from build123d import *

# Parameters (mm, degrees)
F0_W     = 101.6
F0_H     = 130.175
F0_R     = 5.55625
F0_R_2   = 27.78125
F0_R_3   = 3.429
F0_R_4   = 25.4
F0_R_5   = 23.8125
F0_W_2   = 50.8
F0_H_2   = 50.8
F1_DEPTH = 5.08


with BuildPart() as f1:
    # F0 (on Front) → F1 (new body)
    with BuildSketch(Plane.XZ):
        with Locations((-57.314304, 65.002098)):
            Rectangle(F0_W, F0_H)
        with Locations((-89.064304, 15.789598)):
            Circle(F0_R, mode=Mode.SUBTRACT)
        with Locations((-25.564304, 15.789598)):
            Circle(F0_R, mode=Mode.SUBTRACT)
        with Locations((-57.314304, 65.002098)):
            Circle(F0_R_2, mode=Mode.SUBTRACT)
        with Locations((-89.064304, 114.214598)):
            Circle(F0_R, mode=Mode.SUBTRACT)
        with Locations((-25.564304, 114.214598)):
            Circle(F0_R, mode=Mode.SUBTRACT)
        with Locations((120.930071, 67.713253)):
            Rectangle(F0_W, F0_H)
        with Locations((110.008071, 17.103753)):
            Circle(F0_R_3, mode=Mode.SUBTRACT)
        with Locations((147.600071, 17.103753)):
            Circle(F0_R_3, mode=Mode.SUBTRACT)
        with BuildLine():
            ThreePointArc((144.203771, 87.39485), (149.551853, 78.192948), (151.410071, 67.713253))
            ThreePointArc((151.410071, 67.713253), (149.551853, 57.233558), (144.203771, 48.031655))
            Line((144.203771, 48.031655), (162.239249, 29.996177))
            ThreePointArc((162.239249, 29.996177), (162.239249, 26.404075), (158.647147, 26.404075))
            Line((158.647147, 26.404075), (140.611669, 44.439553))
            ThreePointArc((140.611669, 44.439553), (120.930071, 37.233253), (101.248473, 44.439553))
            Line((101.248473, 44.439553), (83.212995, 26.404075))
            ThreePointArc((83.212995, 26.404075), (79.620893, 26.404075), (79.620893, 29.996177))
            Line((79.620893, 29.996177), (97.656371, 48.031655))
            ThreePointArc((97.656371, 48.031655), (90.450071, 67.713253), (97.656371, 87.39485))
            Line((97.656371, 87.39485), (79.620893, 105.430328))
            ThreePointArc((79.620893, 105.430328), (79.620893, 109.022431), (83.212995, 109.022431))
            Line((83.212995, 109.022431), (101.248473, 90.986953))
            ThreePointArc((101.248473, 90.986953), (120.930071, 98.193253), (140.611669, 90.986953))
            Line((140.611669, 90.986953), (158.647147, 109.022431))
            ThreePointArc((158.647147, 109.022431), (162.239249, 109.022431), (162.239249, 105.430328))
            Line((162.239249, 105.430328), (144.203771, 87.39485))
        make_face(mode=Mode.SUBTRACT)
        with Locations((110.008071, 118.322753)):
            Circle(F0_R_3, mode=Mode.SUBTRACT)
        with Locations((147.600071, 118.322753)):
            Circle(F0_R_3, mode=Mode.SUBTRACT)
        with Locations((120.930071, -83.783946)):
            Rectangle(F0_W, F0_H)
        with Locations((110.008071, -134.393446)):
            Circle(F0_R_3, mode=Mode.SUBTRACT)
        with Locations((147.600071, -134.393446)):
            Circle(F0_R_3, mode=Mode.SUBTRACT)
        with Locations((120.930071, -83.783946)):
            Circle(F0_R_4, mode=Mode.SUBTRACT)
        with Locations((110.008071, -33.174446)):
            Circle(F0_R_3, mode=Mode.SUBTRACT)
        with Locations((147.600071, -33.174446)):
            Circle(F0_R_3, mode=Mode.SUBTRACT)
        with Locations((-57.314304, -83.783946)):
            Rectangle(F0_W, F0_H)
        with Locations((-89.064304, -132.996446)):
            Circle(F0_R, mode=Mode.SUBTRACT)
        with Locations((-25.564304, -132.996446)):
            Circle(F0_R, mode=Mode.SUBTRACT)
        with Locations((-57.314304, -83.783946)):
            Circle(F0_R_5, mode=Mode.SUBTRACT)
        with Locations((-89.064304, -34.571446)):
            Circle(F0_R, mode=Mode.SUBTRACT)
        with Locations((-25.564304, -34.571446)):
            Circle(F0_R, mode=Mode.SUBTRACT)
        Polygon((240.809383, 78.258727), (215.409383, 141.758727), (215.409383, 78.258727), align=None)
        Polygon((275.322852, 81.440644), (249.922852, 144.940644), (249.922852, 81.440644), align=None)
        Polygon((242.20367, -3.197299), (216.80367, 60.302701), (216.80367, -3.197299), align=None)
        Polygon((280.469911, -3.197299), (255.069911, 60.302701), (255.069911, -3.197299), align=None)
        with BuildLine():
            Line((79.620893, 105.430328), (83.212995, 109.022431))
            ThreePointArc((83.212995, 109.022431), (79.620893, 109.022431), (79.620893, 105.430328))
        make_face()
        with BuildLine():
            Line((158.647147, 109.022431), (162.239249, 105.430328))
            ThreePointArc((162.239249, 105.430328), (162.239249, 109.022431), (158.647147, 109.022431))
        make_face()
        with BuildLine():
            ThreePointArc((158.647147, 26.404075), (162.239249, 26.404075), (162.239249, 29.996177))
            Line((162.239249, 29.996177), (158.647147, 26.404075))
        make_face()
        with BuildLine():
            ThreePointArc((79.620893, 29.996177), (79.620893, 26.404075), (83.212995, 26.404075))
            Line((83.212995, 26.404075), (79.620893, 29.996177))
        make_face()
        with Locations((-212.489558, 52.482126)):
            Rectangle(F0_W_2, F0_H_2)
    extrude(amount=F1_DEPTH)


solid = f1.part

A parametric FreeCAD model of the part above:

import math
import FreeCAD as App
import Part
import Sketcher

V = App.Vector
Q = App.Units.Quantity

doc = App.newDocument("Part")
body = doc.addObject("PartDesign::Body", "Body")
body.AllowCompound = True

# Sketch on XZ plane
sketch1 = body.newObject("Sketcher::SketchObject", "Sketch")
sketch1.AttachmentSupport = (doc.getObject("XZ_Plane"), [""])
sketch1.MapMode = "FlatFace"
sketch1.addGeometry([
    Part.LineSegment(V(-108.114304, 130.089598, 0), V(-108.114304, -0.085402, 0)),  # 0
    Part.LineSegment(V(-108.114304, -0.085402, 0), V(-6.514304, -0.085402, 0)),  # 1
    Part.LineSegment(V(-6.514304, -0.085402, 0), V(-6.514304, 130.089598, 0)),  # 2
    Part.LineSegment(V(-6.514304, 130.089598, 0), V(-108.114304, 130.089598, 0)),  # 3
    Part.Circle(V(-89.064304, 15.789598, 0), V(0, 0, 1), 5.55625),  # 4
    Part.Circle(V(-25.564304, 15.789598, 0), V(0, 0, 1), 5.55625),  # 5
    Part.Circle(V(-89.064304, 114.214598, 0), V(0, 0, 1), 5.55625),  # 6
    Part.Circle(V(-57.314304, 65.002098, 0), V(0, 0, 1), 27.78125),  # 7
    Part.Circle(V(-25.564304, 114.214598, 0), V(0, 0, 1), 5.55625),  # 8
    Part.LineSegment(V(70.130071, 132.800753, 0), V(70.130071, 2.625753, 0)),  # 9
    Part.LineSegment(V(70.130071, 2.625753, 0), V(171.730071, 2.625753, 0)),  # 10
    Part.LineSegment(V(171.730071, 2.625753, 0), V(171.730071, 132.800753, 0)),  # 11
    Part.LineSegment(V(171.730071, 132.800753, 0), V(70.130071, 132.800753, 0)),  # 12
    Part.Circle(V(110.008071, 17.103753, 0), V(0, 0, 1), 3.429),  # 13
    Part.Circle(V(147.600071, 17.103753, 0), V(0, 0, 1), 3.429),  # 14
    Part.LineSegment(V(162.239249, 105.430328, 0), V(144.203771, 87.39485, 0)),  # 15
    Part.ArcOfCircle(Part.Circle(V(120.930078, 67.713255, 0), V(0, 0, 1), 30.479993), math.radians(-0.000003), math.radians(40.219813)),  # 16
    Part.ArcOfCircle(Part.Circle(V(120.930073, 67.713252, 0), V(0, 0, 1), 30.479998), math.radians(-40.219809), math.radians(0.000002)),  # 17
    Part.LineSegment(V(144.203771, 48.031655, 0), V(162.239249, 29.996177, 0)),  # 18
    Part.LineSegment(V(162.239249, 29.996177, 0), V(158.647147, 26.404075, 0)),  # 19
    Part.LineSegment(V(158.647147, 26.404075, 0), V(140.611669, 44.439553, 0)),  # 20
    Part.ArcOfCircle(Part.Circle(V(120.930071, 67.713254, 0), V(0, 0, 1), 30.480001), math.radians(-130.219808), math.radians(-49.780192)),  # 21
    Part.LineSegment(V(101.248473, 44.439553, 0), V(83.212995, 26.404075, 0)),  # 22
    Part.LineSegment(V(83.212995, 26.404075, 0), V(79.620893, 29.996177, 0)),  # 23
    Part.LineSegment(V(79.620893, 29.996177, 0), V(97.656371, 48.031655, 0)),  # 24
    Part.ArcOfCircle(Part.Circle(V(120.93007, 67.713252, 0), V(0, 0, 1), 30.479999), math.radians(139.780191), math.radians(220.219809)),  # 25
    Part.LineSegment(V(97.656371, 87.39485, 0), V(79.620893, 105.430328, 0)),  # 26
    Part.LineSegment(V(79.620893, 105.430328, 0), V(83.212995, 109.022431, 0)),  # 27
    Part.LineSegment(V(83.212995, 109.022431, 0), V(101.248473, 90.986953, 0)),  # 28
    Part.ArcOfCircle(Part.Circle(V(120.930071, 67.713252, 0), V(0, 0, 1), 30.480001), math.radians(49.780192), math.radians(130.219808)),  # 29
    Part.LineSegment(V(140.611669, 90.986953, 0), V(158.647147, 109.022431, 0)),  # 30
    Part.LineSegment(V(158.647147, 109.022431, 0), V(162.239249, 105.430328, 0)),  # 31
    Part.Circle(V(110.008071, 118.322753, 0), V(0, 0, 1), 3.429),  # 32
    Part.Circle(V(147.600071, 118.322753, 0), V(0, 0, 1), 3.429),  # 33
    Part.LineSegment(V(70.130071, -18.696446, 0), V(70.130071, -148.871446, 0)),  # 34
    Part.LineSegment(V(70.130071, -148.871446, 0), V(171.730071, -148.871446, 0)),  # 35
    Part.LineSegment(V(171.730071, -148.871446, 0), V(171.730071, -18.696446, 0)),  # 36
    Part.LineSegment(V(171.730071, -18.696446, 0), V(70.130071, -18.696446, 0)),  # 37
    Part.Circle(V(110.008071, -134.393446, 0), V(0, 0, 1), 3.429),  # 38
    Part.Circle(V(147.600071, -134.393446, 0), V(0, 0, 1), 3.429),  # 39
    Part.Circle(V(120.930071, -83.783946, 0), V(0, 0, 1), 25.4),  # 40
    Part.Circle(V(110.008071, -33.174446, 0), V(0, 0, 1), 3.429),  # 41
    Part.Circle(V(147.600071, -33.174446, 0), V(0, 0, 1), 3.429),  # 42
    Part.LineSegment(V(-108.114304, -18.696446, 0), V(-108.114304, -148.871446, 0)),  # 43
    Part.LineSegment(V(-108.114304, -148.871446, 0), V(-6.514304, -148.871446, 0)),  # 44
    Part.LineSegment(V(-6.514304, -148.871446, 0), V(-6.514304, -18.696446, 0)),  # 45
    Part.LineSegment(V(-6.514304, -18.696446, 0), V(-108.114304, -18.696446, 0)),  # 46
    Part.Circle(V(-89.064304, -132.996446, 0), V(0, 0, 1), 5.55625),  # 47
    Part.Circle(V(-25.564304, -132.996446, 0), V(0, 0, 1), 5.55625),  # 48
    Part.Circle(V(-89.064304, -34.571446, 0), V(0, 0, 1), 5.55625),  # 49
    Part.Circle(V(-57.314304, -83.783946, 0), V(0, 0, 1), 23.8125),  # 50
    Part.Circle(V(-25.564304, -34.571446, 0), V(0, 0, 1), 5.55625),  # 51
    Part.LineSegment(V(240.809383, 78.258727, 0), V(215.409383, 141.758727, 0)),  # 52
    Part.LineSegment(V(215.409383, 141.758727, 0), V(215.409383, 78.258727, 0)),  # 53
    Part.LineSegment(V(215.409383, 78.258727, 0), V(240.809383, 78.258727, 0)),  # 54
    Part.LineSegment(V(275.322852, 81.440644, 0), V(249.922852, 144.940644, 0)),  # 55
    Part.LineSegment(V(249.922852, 144.940644, 0), V(249.922852, 81.440644, 0)),  # 56
    Part.LineSegment(V(249.922852, 81.440644, 0), V(275.322852, 81.440644, 0)),  # 57
    Part.LineSegment(V(242.20367, -3.197299, 0), V(216.80367, 60.302701, 0)),  # 58
    Part.LineSegment(V(216.80367, 60.302701, 0), V(216.80367, -3.197299, 0)),  # 59
    Part.LineSegment(V(216.80367, -3.197299, 0), V(242.20367, -3.197299, 0)),  # 60
    Part.LineSegment(V(280.469911, -3.197299, 0), V(255.069911, 60.302701, 0)),  # 61
    Part.LineSegment(V(255.069911, 60.302701, 0), V(255.069911, -3.197299, 0)),  # 62
    Part.LineSegment(V(255.069911, -3.197299, 0), V(280.469911, -3.197299, 0)),  # 63
    Part.LineSegment(V(-237.889558, 77.882126, 0), V(-237.889558, 27.082126, 0)),  # 64
    Part.LineSegment(V(-237.889558, 27.082126, 0), V(-187.089558, 27.082126, 0)),  # 65
    Part.LineSegment(V(-187.089558, 27.082126, 0), V(-187.089558, 77.882126, 0)),  # 66
    Part.LineSegment(V(-187.089558, 77.882126, 0), V(-237.889558, 77.882126, 0)),  # 67
], False)
sketch1.addConstraint([
    Sketcher.Constraint("Coincident", 0, 2, 1, 1),
    Sketcher.Constraint("Coincident", 1, 2, 2, 1),
    Sketcher.Constraint("Coincident", 2, 2, 3, 1),
    Sketcher.Constraint("Coincident", 3, 2, 0, 1),
    Sketcher.Constraint("Coincident", 9, 2, 10, 1),
    Sketcher.Constraint("Coincident", 10, 2, 11, 1),
    Sketcher.Constraint("Coincident", 11, 2, 12, 1),
    Sketcher.Constraint("Coincident", 12, 2, 9, 1),
    Sketcher.Constraint("Coincident", 15, 2, 16, 2),
    Sketcher.Constraint("Tangent", 16, 1, 17, 2),
    Sketcher.Constraint("Coincident", 17, 1, 18, 1),
    Sketcher.Constraint("Coincident", 18, 2, 19, 1),
    Sketcher.Constraint("Coincident", 19, 2, 20, 1),
    Sketcher.Constraint("Coincident", 20, 2, 21, 2),
    Sketcher.Constraint("Coincident", 21, 1, 22, 1),
    Sketcher.Constraint("Coincident", 22, 2, 23, 1),
    Sketcher.Constraint("Coincident", 23, 2, 24, 1),
    Sketcher.Constraint("Coincident", 24, 2, 25, 2),
    Sketcher.Constraint("Coincident", 25, 1, 26, 1),
    Sketcher.Constraint("Coincident", 26, 2, 27, 1),
    Sketcher.Constraint("Coincident", 27, 2, 28, 1),
    Sketcher.Constraint("Coincident", 28, 2, 29, 2),
    Sketcher.Constraint("Coincident", 29, 1, 30, 1),
    Sketcher.Constraint("Coincident", 30, 2, 31, 1),
    Sketcher.Constraint("Coincident", 31, 2, 15, 1),
    Sketcher.Constraint("Coincident", 34, 2, 35, 1),
    Sketcher.Constraint("Coincident", 35, 2, 36, 1),
    Sketcher.Constraint("Coincident", 36, 2, 37, 1),
    Sketcher.Constraint("Coincident", 37, 2, 34, 1),
    Sketcher.Constraint("Coincident", 43, 2, 44, 1),
    Sketcher.Constraint("Coincident", 44, 2, 45, 1),
    Sketcher.Constraint("Coincident", 45, 2, 46, 1),
    Sketcher.Constraint("Coincident", 46, 2, 43, 1),
    Sketcher.Constraint("Coincident", 52, 2, 53, 1),
    Sketcher.Constraint("Coincident", 53, 2, 54, 1),
    Sketcher.Constraint("Coincident", 54, 2, 52, 1),
    Sketcher.Constraint("Coincident", 55, 2, 56, 1),
    Sketcher.Constraint("Coincident", 56, 2, 57, 1),
    Sketcher.Constraint("Coincident", 57, 2, 55, 1),
    Sketcher.Constraint("Coincident", 58, 2, 59, 1),
    Sketcher.Constraint("Coincident", 59, 2, 60, 1),
    Sketcher.Constraint("Coincident", 60, 2, 58, 1),
    Sketcher.Constraint("Coincident", 61, 2, 62, 1),
    Sketcher.Constraint("Coincident", 62, 2, 63, 1),
    Sketcher.Constraint("Coincident", 63, 2, 61, 1),
    Sketcher.Constraint("Coincident", 64, 2, 65, 1),
    Sketcher.Constraint("Coincident", 65, 2, 66, 1),
    Sketcher.Constraint("Coincident", 66, 2, 67, 1),
    Sketcher.Constraint("Coincident", 67, 2, 64, 1),
    Sketcher.Constraint("Vertical", 0),
    Sketcher.Constraint("Horizontal", 1),
    Sketcher.Constraint("Vertical", 2),
    Sketcher.Constraint("Horizontal", 3),
    Sketcher.Constraint("Vertical", 9),
    Sketcher.Constraint("Horizontal", 10),
    Sketcher.Constraint("Vertical", 11),
    Sketcher.Constraint("Horizontal", 12),
    Sketcher.Constraint("Vertical", 34),
    Sketcher.Constraint("Horizontal", 35),
    Sketcher.Constraint("Vertical", 36),
    Sketcher.Constraint("Horizontal", 37),
    Sketcher.Constraint("Vertical", 43),
    Sketcher.Constraint("Horizontal", 44),
    Sketcher.Constraint("Vertical", 45),
    Sketcher.Constraint("Horizontal", 46),
    Sketcher.Constraint("Vertical", 53),
    Sketcher.Constraint("Horizontal", 54),
    Sketcher.Constraint("Vertical", 56),
    Sketcher.Constraint("Horizontal", 57),
    Sketcher.Constraint("Vertical", 59),
    Sketcher.Constraint("Horizontal", 60),
    Sketcher.Constraint("Vertical", 62),
    Sketcher.Constraint("Horizontal", 63),
    Sketcher.Constraint("Vertical", 64),
    Sketcher.Constraint("Horizontal", 65),
    Sketcher.Constraint("Vertical", 66),
    Sketcher.Constraint("Horizontal", 67),
    Sketcher.Constraint("Coincident", 21, 3, 16, 3),
    Sketcher.Constraint("Coincident", 25, 3, 16, 3),
    Sketcher.Constraint("Coincident", 29, 3, 16, 3),
    Sketcher.Constraint("Equal", 4, 5),
    Sketcher.Constraint("Equal", 5, 6),
    Sketcher.Constraint("Equal", 6, 8),
    Sketcher.Constraint("Equal", 13, 14),
    Sketcher.Constraint("Equal", 21, 25),
    Sketcher.Constraint("Equal", 25, 29),
    Sketcher.Constraint("Equal", 14, 32),
    Sketcher.Constraint("Equal", 32, 33),
    Sketcher.Constraint("Equal", 33, 38),
    Sketcher.Constraint("Equal", 38, 39),
    Sketcher.Constraint("Equal", 39, 41),
    Sketcher.Constraint("Equal", 41, 42),
    Sketcher.Constraint("Equal", 8, 47),
    Sketcher.Constraint("Equal", 47, 48),
    Sketcher.Constraint("Equal", 48, 49),
    Sketcher.Constraint("Equal", 49, 51),
    Sketcher.Constraint("Perpendicular", 15, 18),
    Sketcher.Constraint("Perpendicular", 18, 19),
    Sketcher.Constraint("Perpendicular", 19, 20),
    Sketcher.Constraint("Perpendicular", 20, 22),
    Sketcher.Constraint("Perpendicular", 22, 23),
    Sketcher.Constraint("Perpendicular", 23, 24),
    Sketcher.Constraint("Perpendicular", 24, 26),
    Sketcher.Constraint("Perpendicular", 26, 27),
    Sketcher.Constraint("Perpendicular", 27, 28),
    Sketcher.Constraint("Perpendicular", 28, 30),
    Sketcher.Constraint("Perpendicular", 30, 31),
    Sketcher.Constraint("Parallel", 52, 55),
    Sketcher.Constraint("Parallel", 55, 58),
    Sketcher.Constraint("Parallel", 58, 61),
    Sketcher.Constraint("Horizontal", 4, 3, 5, 3),
    Sketcher.Constraint("Horizontal", 6, 3, 8, 3),
    Sketcher.Constraint("Horizontal", 13, 3, 14, 3),
    Sketcher.Constraint("Horizontal", 32, 3, 33, 3),
    Sketcher.Constraint("Horizontal", 38, 3, 39, 3),
    Sketcher.Constraint("Horizontal", 41, 3, 42, 3),
    Sketcher.Constraint("Horizontal", 47, 3, 48, 3),
    Sketcher.Constraint("Horizontal", 40, 3, 50, 3),
    Sketcher.Constraint("Horizontal", 49, 3, 51, 3),
    Sketcher.Constraint("Horizontal", 29, 3, 16, 1),
    Sketcher.Constraint("Horizontal", 20, 2, 21, 1),
    Sketcher.Constraint("Horizontal", 19, 2, 22, 2),
    Sketcher.Constraint("Horizontal", 18, 2, 23, 2),
    Sketcher.Constraint("Horizontal", 17, 1, 24, 2),
    Sketcher.Constraint("Horizontal", 15, 2, 25, 1),
    Sketcher.Constraint("Horizontal", 28, 2, 29, 1),
    Sketcher.Constraint("Horizontal", 27, 2, 30, 2),
    Sketcher.Constraint("Horizontal", 26, 2, 31, 2),
    Sketcher.Constraint("Horizontal", 35, 2, 43, 2),
    Sketcher.Constraint("Horizontal", 37, 2, 45, 2),
    Sketcher.Constraint("Horizontal", 58, 2, 61, 2),
    Sketcher.Constraint("Horizontal", 60, 2, 62, 2),
    Sketcher.Constraint("Vertical", 4, 3, 6, 3),
    Sketcher.Constraint("Vertical", 5, 3, 8, 3),
    Sketcher.Constraint("Vertical", 13, 3, 32, 3),
    Sketcher.Constraint("Vertical", 14, 3, 33, 3),
    Sketcher.Constraint("Vertical", 32, 3, 38, 3),
    Sketcher.Constraint("Vertical", 33, 3, 39, 3),
    Sketcher.Constraint("Vertical", 29, 3, 40, 3),
    Sketcher.Constraint("Vertical", 38, 3, 41, 3),
    Sketcher.Constraint("Vertical", 39, 3, 42, 3),
    Sketcher.Constraint("Vertical", 6, 3, 47, 3),
    Sketcher.Constraint("Vertical", 8, 3, 48, 3),
    Sketcher.Constraint("Vertical", 47, 3, 49, 3),
    Sketcher.Constraint("Vertical", 7, 3, 50, 3),
    Sketcher.Constraint("Vertical", 48, 3, 51, 3),
    Sketcher.Constraint("Vertical", 15, 2, 17, 1),
    Sketcher.Constraint("Vertical", 24, 2, 25, 1),
    Sketcher.Constraint("Vertical", 23, 2, 26, 2),
    Sketcher.Constraint("Vertical", 22, 2, 27, 2),
    Sketcher.Constraint("Vertical", 12, 2, 34, 2),
    Sketcher.Constraint("Vertical", 11, 2, 35, 2),
    Sketcher.Constraint("Vertical", 3, 2, 43, 2),
    Sketcher.Constraint("Vertical", 2, 2, 44, 2),
    Sketcher.Constraint("Equal", 3, 10),
    Sketcher.Constraint("Equal", 54, 57),
    Sketcher.Constraint("Equal", 57, 60),
    Sketcher.Constraint("Equal", 2, 9),
    Sketcher.Constraint("Equal", 11, 34),
    Sketcher.Constraint("Equal", 67, 64),
    Sketcher.Constraint("Equal", 18, 20),
    Sketcher.Constraint("Diameter", 40, Q("2 in")),
    Sketcher.Constraint("Radius", 17, Q("1.1999999 in")),
    Sketcher.Constraint("Diameter", 13, Q("0.27 in")),
    Sketcher.Constraint("DistanceX", 1, 1, 1, 2, Q("4 in")),
    Sketcher.Constraint("DistanceX", 54, 1, 54, 2, Q("1 in")),
    Sketcher.Constraint("DistanceX", 65, 1, 65, 2, Q("2 in")),
    Sketcher.Constraint("Diameter", 4, Q("0.4375 in")),
    Sketcher.Constraint("Diameter", 7, Q("2.1875 in")),
    Sketcher.Constraint("Diameter", 50, Q("1.875 in")),
    Sketcher.Constraint("DistanceY", 53, 2, 53, 1, Q("2.5 in")),
    Sketcher.Constraint("Distance", 19, Q("0.2 in")),
    Sketcher.Constraint("DistanceY", 0, 2, 0, 1, Q("5.125 in")),
    Sketcher.Constraint("DistanceY", -1, 1, 7, 3, 65.002098),
    Sketcher.Constraint("DistanceY", -1, 1, 2, 2, 130.089598),
    Sketcher.Constraint("DistanceY", -1, 1, 58, 2, 60.302701),
    Sketcher.Constraint("DistanceX", -1, 1, 13, 3, 110.008071),
    Sketcher.Constraint("DistanceX", -1, 1, 14, 3, 147.600071),
    Sketcher.Constraint("DistanceX", -1, 1, 21, 3, 120.930071),
    Sketcher.Constraint("DistanceX", -1, 1, 9, 2, 70.130071),
    Sketcher.Constraint("DistanceY", -1, 1, 15, 2, 87.39485),
    Sketcher.Constraint("DistanceX", -1, 1, 18, 2, 162.239249),
    Sketcher.Constraint("DistanceX", -1, 1, 55, 2, 249.922852),
    Sketcher.Constraint("DistanceX", -1, 1, 58, 2, 216.80367),
    Sketcher.Constraint("DistanceX", -1, 1, 61, 2, 255.069911),
    Sketcher.Constraint("DistanceX", 64, 2, -1, 1, 237.889558),
    Sketcher.Constraint("DistanceX", 4, 3, -1, 1, 89.064304),
    Sketcher.Constraint("DistanceY", -1, 1, 4, 3, 15.789598),
    Sketcher.Constraint("DistanceX", 5, 3, -1, 1, 25.564304),
    Sketcher.Constraint("DistanceY", -1, 1, 6, 3, 114.214598),
    Sketcher.Constraint("DistanceX", 7, 3, -1, 1, 57.314304),
    Sketcher.Constraint("DistanceY", -1, 1, 13, 3, 17.103753),
    Sketcher.Constraint("DistanceY", -1, 1, 32, 3, 118.322753),
    Sketcher.Constraint("DistanceY", 38, 3, -1, 1, 134.393446),
    Sketcher.Constraint("DistanceY", 40, 3, -1, 1, 83.783946),
    Sketcher.Constraint("DistanceY", 41, 3, -1, 1, 33.174446),
    Sketcher.Constraint("DistanceY", 47, 3, -1, 1, 132.996446),
    Sketcher.Constraint("DistanceY", 49, 3, -1, 1, 34.571446),
    Sketcher.Constraint("DistanceX", 0, 2, -1, 1, 108.114304),
    Sketcher.Constraint("DistanceY", -1, 1, 9, 2, 2.625753),
    Sketcher.Constraint("DistanceY", 34, 2, -1, 1, 148.871446),
    Sketcher.Constraint("DistanceX", -1, 1, 52, 2, 215.409383),
    Sketcher.Constraint("DistanceY", -1, 1, 52, 2, 141.758727),
    Sketcher.Constraint("DistanceY", -1, 1, 55, 2, 144.940644),
    Sketcher.Constraint("DistanceY", -1, 1, 64, 2, 27.082126),
])
pad1 = body.newObject("PartDesign::Pad", "Pad")
pad1.Profile = sketch1
pad1.Length = Q("0.2 in")

doc.recompute()
